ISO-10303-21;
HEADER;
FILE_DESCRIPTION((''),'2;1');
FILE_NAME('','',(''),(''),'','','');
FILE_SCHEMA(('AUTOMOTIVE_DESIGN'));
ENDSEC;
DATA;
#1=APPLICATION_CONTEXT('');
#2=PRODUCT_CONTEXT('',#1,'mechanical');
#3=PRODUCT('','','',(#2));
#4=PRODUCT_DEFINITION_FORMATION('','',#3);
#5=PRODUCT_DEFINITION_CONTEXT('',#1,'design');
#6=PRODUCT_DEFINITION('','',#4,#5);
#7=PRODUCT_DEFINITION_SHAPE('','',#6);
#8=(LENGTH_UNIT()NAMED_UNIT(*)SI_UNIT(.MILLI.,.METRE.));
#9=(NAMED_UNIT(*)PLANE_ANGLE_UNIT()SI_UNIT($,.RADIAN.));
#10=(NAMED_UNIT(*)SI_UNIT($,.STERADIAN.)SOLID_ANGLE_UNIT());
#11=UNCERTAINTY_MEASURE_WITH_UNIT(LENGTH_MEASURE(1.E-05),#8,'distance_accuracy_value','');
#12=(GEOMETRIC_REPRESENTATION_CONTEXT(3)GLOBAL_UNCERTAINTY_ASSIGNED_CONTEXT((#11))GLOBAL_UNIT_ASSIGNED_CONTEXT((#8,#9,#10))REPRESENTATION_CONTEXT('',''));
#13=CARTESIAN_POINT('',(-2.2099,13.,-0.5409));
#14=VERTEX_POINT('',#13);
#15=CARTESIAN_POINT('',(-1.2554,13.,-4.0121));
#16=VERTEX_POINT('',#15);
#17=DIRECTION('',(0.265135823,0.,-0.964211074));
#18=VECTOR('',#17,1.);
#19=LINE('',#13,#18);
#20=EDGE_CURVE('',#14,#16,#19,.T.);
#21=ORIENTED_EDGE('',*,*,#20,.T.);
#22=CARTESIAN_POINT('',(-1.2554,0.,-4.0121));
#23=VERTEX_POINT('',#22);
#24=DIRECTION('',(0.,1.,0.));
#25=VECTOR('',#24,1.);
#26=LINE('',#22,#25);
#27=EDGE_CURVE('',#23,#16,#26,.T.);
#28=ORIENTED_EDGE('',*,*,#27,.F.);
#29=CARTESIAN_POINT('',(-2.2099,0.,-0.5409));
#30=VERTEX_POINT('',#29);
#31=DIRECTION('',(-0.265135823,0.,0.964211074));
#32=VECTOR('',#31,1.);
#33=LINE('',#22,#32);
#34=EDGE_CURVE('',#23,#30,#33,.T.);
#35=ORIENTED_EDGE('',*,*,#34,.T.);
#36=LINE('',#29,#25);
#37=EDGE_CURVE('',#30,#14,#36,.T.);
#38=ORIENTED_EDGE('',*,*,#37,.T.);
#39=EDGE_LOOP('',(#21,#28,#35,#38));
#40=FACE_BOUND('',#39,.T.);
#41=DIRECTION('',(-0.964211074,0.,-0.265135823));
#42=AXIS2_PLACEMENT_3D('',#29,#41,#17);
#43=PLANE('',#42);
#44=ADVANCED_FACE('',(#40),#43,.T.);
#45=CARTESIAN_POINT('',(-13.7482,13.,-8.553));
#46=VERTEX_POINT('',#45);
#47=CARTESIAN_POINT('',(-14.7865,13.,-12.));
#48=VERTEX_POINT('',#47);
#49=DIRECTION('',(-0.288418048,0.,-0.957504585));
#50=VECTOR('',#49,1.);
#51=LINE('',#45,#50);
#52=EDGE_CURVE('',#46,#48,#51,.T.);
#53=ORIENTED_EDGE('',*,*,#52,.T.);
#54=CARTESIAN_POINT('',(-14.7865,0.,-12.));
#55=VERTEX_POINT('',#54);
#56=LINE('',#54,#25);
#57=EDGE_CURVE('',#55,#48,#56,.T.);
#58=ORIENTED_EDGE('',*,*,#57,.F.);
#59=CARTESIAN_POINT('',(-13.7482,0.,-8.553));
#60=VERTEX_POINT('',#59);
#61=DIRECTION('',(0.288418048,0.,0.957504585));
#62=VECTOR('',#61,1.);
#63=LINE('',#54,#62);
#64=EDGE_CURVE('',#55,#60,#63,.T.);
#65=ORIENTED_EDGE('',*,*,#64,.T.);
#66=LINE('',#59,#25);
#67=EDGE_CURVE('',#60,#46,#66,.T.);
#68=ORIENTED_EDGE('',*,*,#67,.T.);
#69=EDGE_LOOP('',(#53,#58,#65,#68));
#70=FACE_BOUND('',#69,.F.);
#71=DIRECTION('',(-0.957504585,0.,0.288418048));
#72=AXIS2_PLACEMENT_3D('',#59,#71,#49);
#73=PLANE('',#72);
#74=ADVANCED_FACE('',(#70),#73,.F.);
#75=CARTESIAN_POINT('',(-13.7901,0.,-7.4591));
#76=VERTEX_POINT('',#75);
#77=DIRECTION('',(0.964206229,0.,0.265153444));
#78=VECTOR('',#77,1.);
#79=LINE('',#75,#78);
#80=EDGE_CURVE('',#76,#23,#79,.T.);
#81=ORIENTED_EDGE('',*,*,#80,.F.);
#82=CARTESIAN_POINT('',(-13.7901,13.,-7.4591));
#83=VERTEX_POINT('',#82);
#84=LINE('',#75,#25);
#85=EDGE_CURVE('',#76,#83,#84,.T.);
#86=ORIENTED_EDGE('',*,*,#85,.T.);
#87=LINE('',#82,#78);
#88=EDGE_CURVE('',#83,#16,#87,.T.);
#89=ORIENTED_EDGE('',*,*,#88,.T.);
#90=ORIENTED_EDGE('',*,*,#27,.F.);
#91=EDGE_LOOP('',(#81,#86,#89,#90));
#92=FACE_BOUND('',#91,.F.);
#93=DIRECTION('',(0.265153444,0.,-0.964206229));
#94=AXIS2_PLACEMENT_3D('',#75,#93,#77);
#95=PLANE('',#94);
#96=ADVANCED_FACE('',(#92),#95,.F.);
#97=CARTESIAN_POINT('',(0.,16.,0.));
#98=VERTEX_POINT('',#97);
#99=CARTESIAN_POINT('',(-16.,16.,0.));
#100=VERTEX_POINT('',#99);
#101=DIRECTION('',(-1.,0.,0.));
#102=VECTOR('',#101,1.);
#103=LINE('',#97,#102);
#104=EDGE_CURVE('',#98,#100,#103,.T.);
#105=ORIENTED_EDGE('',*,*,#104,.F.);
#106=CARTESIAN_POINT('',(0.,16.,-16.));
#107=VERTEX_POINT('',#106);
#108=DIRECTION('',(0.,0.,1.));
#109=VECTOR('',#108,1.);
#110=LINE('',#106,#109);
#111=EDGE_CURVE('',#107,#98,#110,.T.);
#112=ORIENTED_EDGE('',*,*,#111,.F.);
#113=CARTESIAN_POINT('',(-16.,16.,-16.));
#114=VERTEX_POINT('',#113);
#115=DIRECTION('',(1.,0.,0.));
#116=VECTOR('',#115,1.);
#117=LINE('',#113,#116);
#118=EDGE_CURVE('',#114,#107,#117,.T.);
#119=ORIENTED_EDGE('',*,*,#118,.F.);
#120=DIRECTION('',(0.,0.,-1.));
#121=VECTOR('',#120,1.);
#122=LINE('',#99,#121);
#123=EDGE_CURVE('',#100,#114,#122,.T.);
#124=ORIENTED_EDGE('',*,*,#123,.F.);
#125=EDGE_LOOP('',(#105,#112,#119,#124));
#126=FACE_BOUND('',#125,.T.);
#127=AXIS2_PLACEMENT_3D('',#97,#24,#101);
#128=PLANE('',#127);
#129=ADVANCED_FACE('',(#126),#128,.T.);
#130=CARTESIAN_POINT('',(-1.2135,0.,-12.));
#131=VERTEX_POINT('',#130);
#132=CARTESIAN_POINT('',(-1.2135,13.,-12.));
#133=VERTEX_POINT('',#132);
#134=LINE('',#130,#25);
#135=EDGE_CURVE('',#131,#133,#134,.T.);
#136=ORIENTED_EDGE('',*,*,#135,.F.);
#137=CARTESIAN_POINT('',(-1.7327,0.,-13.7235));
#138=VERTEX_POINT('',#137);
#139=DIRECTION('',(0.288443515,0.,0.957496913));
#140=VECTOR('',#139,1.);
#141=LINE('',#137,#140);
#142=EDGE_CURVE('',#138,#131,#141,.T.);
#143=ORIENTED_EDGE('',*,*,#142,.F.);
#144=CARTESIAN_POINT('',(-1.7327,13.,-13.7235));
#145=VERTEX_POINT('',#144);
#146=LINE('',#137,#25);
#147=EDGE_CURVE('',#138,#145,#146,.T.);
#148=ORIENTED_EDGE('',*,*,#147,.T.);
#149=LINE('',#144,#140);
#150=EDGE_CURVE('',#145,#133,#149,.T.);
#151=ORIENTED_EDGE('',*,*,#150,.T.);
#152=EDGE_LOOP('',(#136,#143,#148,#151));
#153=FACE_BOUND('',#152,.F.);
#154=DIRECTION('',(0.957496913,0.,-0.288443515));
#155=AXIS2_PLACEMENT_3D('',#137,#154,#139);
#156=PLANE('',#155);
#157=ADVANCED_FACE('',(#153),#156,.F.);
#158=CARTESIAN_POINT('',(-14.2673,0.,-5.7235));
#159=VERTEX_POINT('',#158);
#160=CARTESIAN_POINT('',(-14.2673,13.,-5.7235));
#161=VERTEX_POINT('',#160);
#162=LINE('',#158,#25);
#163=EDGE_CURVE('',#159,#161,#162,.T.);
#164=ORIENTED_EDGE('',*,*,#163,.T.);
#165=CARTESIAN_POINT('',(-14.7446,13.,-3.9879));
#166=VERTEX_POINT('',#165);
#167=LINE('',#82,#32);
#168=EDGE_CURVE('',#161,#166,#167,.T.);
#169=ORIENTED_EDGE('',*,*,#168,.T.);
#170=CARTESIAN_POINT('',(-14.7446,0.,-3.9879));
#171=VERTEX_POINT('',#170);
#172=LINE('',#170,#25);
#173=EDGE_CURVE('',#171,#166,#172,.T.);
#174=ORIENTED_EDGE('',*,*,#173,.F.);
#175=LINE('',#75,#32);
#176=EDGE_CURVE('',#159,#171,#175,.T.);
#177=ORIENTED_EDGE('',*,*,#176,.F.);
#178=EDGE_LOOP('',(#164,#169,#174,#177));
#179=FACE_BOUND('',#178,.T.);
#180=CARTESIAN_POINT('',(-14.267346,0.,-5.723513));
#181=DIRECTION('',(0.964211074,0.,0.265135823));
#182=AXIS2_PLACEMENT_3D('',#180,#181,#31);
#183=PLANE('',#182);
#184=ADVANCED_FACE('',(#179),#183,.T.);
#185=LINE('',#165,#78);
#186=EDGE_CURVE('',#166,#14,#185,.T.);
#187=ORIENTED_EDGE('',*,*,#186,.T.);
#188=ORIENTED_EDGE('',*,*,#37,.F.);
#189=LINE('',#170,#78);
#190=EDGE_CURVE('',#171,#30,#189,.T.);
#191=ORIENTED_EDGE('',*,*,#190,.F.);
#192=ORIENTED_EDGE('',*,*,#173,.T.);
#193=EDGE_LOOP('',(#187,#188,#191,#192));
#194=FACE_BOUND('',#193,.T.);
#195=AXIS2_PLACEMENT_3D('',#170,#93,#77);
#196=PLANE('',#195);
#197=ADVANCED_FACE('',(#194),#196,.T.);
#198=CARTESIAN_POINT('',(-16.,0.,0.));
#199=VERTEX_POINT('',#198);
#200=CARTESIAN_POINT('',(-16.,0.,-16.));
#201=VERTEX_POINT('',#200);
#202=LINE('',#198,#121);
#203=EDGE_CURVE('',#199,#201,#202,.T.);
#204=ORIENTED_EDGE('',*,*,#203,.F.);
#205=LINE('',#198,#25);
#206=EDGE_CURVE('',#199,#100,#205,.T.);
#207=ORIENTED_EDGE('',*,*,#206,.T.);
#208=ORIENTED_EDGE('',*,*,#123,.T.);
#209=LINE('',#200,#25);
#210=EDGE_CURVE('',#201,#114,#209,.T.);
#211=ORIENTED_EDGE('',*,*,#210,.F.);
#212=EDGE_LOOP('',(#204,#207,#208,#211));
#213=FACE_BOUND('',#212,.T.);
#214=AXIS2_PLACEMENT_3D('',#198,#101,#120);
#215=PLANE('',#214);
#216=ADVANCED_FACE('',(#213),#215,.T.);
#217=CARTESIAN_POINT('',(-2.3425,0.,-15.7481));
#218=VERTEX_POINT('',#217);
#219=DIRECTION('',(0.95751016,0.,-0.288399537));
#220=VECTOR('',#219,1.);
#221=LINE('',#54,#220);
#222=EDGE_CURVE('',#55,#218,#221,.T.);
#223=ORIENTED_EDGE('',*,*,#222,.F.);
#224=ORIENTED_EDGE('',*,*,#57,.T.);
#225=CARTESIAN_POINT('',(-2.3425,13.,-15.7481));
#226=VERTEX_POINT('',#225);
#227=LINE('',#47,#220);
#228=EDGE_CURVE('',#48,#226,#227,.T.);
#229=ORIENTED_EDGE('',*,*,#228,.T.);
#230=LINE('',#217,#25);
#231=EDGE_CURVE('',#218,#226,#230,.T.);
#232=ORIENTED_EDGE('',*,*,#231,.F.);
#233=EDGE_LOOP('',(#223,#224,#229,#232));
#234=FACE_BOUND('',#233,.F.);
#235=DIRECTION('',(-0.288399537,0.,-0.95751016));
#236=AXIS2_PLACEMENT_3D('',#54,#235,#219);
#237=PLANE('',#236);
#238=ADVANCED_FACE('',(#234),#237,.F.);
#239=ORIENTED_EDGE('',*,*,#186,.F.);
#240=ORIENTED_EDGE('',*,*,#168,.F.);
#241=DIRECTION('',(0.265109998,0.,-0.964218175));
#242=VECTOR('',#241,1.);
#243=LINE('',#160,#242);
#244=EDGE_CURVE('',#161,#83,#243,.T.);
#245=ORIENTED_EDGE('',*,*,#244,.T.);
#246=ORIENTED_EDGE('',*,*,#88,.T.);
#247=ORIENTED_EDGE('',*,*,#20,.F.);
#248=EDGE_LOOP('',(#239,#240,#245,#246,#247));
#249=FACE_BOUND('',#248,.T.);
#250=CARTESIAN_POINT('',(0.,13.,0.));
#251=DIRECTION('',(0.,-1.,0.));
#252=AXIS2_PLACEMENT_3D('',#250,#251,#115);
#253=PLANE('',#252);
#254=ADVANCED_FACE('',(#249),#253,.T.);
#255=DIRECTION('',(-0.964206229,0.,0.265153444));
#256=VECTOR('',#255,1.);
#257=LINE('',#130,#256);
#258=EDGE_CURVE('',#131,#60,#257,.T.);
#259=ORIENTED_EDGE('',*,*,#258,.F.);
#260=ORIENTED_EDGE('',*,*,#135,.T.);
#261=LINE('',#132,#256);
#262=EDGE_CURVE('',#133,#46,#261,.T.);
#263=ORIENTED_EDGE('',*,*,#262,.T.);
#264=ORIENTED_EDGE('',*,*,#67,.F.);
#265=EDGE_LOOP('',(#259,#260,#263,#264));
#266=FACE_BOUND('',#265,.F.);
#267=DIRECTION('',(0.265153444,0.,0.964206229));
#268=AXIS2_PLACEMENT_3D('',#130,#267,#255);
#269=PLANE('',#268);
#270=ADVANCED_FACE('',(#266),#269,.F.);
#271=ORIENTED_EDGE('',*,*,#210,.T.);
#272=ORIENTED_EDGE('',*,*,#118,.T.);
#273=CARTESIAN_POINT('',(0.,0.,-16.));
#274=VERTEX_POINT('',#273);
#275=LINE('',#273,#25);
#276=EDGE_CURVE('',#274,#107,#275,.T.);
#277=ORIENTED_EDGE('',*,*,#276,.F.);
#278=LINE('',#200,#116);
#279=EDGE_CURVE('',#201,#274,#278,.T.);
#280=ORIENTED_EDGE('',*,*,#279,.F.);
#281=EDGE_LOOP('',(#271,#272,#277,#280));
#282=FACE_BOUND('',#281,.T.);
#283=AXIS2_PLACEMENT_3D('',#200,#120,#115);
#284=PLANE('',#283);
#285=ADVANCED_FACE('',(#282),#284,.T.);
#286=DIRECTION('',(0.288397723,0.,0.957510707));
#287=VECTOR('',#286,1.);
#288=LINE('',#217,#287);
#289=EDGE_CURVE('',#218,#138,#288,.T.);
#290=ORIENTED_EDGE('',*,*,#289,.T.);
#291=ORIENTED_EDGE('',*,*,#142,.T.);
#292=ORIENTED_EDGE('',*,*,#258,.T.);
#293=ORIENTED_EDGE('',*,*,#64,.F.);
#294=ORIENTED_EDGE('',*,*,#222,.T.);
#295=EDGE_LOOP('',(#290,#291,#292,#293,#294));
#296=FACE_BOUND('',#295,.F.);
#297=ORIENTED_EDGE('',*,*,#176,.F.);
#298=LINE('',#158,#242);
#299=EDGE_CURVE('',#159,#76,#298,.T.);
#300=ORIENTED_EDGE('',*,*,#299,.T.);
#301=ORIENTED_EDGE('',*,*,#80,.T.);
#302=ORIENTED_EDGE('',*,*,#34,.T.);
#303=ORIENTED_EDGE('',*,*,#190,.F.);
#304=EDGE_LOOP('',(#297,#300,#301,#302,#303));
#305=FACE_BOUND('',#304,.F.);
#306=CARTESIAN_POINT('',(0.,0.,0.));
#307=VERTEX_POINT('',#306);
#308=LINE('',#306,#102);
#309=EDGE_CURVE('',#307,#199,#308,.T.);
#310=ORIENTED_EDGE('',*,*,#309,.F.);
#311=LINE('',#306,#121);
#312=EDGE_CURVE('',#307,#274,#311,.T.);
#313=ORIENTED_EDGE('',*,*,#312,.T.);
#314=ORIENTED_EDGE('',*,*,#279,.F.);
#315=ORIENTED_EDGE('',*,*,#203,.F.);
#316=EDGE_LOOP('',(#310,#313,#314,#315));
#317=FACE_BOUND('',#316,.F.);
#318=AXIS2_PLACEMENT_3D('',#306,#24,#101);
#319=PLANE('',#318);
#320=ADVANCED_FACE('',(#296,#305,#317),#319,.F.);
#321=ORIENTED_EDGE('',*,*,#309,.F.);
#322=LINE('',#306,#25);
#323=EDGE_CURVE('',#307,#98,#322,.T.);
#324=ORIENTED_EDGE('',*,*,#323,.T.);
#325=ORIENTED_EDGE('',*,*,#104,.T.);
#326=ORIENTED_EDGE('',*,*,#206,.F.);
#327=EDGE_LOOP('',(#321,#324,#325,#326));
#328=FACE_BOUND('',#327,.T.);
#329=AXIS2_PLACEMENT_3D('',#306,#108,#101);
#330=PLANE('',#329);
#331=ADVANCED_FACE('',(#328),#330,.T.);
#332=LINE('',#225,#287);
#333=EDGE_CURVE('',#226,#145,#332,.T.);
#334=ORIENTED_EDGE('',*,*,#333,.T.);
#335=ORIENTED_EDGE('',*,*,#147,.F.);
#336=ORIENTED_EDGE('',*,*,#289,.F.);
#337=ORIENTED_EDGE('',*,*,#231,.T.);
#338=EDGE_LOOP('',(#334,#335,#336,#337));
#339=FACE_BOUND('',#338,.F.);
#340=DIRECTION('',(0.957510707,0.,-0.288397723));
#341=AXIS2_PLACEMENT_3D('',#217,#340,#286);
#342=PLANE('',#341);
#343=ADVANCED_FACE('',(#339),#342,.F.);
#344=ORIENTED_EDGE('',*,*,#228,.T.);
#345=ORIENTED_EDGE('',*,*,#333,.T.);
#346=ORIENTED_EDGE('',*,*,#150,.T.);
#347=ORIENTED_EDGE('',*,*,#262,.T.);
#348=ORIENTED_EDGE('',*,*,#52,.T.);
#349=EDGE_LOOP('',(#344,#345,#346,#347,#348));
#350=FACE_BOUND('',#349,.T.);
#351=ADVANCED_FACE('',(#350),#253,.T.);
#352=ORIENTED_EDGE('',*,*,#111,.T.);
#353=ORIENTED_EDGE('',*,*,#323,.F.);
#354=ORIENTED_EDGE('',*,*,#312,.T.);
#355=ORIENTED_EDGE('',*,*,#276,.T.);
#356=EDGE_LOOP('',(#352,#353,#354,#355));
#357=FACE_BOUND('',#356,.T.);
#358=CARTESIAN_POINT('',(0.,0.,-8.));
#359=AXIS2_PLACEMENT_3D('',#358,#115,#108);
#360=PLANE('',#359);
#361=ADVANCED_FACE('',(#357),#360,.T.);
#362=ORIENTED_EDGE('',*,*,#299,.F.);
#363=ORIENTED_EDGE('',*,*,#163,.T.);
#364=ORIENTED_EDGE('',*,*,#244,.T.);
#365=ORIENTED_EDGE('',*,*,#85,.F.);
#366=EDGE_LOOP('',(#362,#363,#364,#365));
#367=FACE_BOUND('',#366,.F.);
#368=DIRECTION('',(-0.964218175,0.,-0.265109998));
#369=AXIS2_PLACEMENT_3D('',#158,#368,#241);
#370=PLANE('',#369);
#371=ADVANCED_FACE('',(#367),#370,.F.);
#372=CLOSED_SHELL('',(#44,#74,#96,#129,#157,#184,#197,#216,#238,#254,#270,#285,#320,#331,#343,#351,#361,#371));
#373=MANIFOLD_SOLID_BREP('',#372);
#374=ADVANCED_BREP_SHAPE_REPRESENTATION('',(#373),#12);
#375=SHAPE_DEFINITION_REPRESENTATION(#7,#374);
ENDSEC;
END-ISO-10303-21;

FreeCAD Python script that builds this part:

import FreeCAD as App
import Part
import Sketcher
from FreeCAD import Vector
Q = App.Units.Quantity


def add_polygon(sketch, points):
    """Adds a closed chain of lines whose ends are joined by coincident constraints."""
    first, n = sketch.GeometryCount, len(points)
    for a, b in zip(points, points[1:] + points[:1]):
        sketch.addGeometry(Part.LineSegment(App.Vector(*a, 0), App.Vector(*b, 0)), False)
    for i in range(n):
        sketch.addConstraint(Sketcher.Constraint("Coincident", first + i, 2, first + (i + 1) % n, 1))

doc = App.newDocument("Part")
body = doc.addObject("PartDesign::Body", "Body")

sketch1 = doc.addObject("Sketcher::SketchObject", "Sketch")
body.addObject(sketch1)
sketch1.AttachmentSupport = (doc.XZ_Plane, [""])
sketch1.MapMode = "FlatFace"
add_polygon(sketch1, [(-16, 0), (0, 0), (0, -16), (-16, -16)])
sketch1.addConstraint(Sketcher.Constraint("Horizontal", 0))
sketch1.addConstraint(Sketcher.Constraint("Vertical", 1))
sketch1.addConstraint(Sketcher.Constraint("Horizontal", 2))
sketch1.addConstraint(Sketcher.Constraint("Vertical", 3))
sketch1.addConstraint(Sketcher.Constraint("Coincident", 0, 2, -1, 1))
sketch1.addConstraint(Sketcher.Constraint("Equal", 2, 1))
sketch1.addConstraint(Sketcher.Constraint("DistanceX", 0, 1, 0, 2, Q("16 mm")))
pad1 = doc.addObject("PartDesign::Pad", "Pad")
body.addObject(pad1)
pad1.Profile = sketch1
pad1.Length = 16
pad1.Reversed = True

sketch2 = doc.addObject("Sketcher::SketchObject", "Sketch001")
body.addObject(sketch2)
sketch2.AttachmentSupport = (doc.XZ_Plane, [""])
sketch2.MapMode = "FlatFace"
add_polygon(sketch2, [(-14.7, -4), (-14.3, -5.7), (-13.8, -7.5), (-1.3, -4), (-2.2, -0.5)])
add_polygon(sketch2, [(-13.7, -8.6), (-14.8, -12), (-2.3, -15.7), (-1.7, -13.7), (-1.2, -12)])
sketch2.addConstraint(Sketcher.Constraint("Parallel", 0, 1))
sketch2.addConstraint(Sketcher.Constraint("Perpendicular", 1, 2))
sketch2.addConstraint(Sketcher.Constraint("Perpendicular", 2, 3))
sketch2.addConstraint(Sketcher.Constraint("Perpendicular", 3, 4))
sketch2.addConstraint(Sketcher.Constraint("Perpendicular", 5, 6))
sketch2.addConstraint(Sketcher.Constraint("Perpendicular", 6, 7))
sketch2.addConstraint(Sketcher.Constraint("Parallel", 7, 8))
sketch2.addConstraint(Sketcher.Constraint("Horizontal", 5, 2, 8, 2))
sketch2.addConstraint(Sketcher.Constraint("Equal", 0, 1))
sketch2.addConstraint(Sketcher.Constraint("Equal", 3, 5))
sketch2.addConstraint(Sketcher.Constraint("Equal", 1, 8))
sketch2.addConstraint(Sketcher.Constraint("Equal", 4, 9))
sketch2.addConstraint(Sketcher.Constraint("Distance", 2, Q("13 mm")))
sketch2.addConstraint(Sketcher.Constraint("Distance", 0, Q("1.8 mm")))
sketch2.addConstraint(Sketcher.Constraint("DistanceY", 5, 2, -1, 1, Q("12 mm")))
sketch2.addConstraint(Sketcher.Constraint("DistanceX", 1, 2, -1, 1, Q("13.79 mm")))
sketch2.addConstraint(Sketcher.Constraint("DistanceX", 3, 2, -1, 1, Q("2.21 mm")))
sketch2.addConstraint(Sketcher.Constraint("DistanceY", 1, 2, -1, 1, Q("7.459 mm")))
sketch2.addConstraint(Sketcher.Constraint("DistanceY", 6, 2, -1, 1, Q("15.748 mm")))
sketch2.addConstraint(Sketcher.Constraint("DistanceX", 5, 2, 4, 2, Q("0.042 mm")))
pocket1 = doc.addObject("PartDesign::Pocket", "Pocket")
body.addObject(pocket1)
pocket1.Profile = sketch2
pocket1.Length = 13

doc.recompute()
